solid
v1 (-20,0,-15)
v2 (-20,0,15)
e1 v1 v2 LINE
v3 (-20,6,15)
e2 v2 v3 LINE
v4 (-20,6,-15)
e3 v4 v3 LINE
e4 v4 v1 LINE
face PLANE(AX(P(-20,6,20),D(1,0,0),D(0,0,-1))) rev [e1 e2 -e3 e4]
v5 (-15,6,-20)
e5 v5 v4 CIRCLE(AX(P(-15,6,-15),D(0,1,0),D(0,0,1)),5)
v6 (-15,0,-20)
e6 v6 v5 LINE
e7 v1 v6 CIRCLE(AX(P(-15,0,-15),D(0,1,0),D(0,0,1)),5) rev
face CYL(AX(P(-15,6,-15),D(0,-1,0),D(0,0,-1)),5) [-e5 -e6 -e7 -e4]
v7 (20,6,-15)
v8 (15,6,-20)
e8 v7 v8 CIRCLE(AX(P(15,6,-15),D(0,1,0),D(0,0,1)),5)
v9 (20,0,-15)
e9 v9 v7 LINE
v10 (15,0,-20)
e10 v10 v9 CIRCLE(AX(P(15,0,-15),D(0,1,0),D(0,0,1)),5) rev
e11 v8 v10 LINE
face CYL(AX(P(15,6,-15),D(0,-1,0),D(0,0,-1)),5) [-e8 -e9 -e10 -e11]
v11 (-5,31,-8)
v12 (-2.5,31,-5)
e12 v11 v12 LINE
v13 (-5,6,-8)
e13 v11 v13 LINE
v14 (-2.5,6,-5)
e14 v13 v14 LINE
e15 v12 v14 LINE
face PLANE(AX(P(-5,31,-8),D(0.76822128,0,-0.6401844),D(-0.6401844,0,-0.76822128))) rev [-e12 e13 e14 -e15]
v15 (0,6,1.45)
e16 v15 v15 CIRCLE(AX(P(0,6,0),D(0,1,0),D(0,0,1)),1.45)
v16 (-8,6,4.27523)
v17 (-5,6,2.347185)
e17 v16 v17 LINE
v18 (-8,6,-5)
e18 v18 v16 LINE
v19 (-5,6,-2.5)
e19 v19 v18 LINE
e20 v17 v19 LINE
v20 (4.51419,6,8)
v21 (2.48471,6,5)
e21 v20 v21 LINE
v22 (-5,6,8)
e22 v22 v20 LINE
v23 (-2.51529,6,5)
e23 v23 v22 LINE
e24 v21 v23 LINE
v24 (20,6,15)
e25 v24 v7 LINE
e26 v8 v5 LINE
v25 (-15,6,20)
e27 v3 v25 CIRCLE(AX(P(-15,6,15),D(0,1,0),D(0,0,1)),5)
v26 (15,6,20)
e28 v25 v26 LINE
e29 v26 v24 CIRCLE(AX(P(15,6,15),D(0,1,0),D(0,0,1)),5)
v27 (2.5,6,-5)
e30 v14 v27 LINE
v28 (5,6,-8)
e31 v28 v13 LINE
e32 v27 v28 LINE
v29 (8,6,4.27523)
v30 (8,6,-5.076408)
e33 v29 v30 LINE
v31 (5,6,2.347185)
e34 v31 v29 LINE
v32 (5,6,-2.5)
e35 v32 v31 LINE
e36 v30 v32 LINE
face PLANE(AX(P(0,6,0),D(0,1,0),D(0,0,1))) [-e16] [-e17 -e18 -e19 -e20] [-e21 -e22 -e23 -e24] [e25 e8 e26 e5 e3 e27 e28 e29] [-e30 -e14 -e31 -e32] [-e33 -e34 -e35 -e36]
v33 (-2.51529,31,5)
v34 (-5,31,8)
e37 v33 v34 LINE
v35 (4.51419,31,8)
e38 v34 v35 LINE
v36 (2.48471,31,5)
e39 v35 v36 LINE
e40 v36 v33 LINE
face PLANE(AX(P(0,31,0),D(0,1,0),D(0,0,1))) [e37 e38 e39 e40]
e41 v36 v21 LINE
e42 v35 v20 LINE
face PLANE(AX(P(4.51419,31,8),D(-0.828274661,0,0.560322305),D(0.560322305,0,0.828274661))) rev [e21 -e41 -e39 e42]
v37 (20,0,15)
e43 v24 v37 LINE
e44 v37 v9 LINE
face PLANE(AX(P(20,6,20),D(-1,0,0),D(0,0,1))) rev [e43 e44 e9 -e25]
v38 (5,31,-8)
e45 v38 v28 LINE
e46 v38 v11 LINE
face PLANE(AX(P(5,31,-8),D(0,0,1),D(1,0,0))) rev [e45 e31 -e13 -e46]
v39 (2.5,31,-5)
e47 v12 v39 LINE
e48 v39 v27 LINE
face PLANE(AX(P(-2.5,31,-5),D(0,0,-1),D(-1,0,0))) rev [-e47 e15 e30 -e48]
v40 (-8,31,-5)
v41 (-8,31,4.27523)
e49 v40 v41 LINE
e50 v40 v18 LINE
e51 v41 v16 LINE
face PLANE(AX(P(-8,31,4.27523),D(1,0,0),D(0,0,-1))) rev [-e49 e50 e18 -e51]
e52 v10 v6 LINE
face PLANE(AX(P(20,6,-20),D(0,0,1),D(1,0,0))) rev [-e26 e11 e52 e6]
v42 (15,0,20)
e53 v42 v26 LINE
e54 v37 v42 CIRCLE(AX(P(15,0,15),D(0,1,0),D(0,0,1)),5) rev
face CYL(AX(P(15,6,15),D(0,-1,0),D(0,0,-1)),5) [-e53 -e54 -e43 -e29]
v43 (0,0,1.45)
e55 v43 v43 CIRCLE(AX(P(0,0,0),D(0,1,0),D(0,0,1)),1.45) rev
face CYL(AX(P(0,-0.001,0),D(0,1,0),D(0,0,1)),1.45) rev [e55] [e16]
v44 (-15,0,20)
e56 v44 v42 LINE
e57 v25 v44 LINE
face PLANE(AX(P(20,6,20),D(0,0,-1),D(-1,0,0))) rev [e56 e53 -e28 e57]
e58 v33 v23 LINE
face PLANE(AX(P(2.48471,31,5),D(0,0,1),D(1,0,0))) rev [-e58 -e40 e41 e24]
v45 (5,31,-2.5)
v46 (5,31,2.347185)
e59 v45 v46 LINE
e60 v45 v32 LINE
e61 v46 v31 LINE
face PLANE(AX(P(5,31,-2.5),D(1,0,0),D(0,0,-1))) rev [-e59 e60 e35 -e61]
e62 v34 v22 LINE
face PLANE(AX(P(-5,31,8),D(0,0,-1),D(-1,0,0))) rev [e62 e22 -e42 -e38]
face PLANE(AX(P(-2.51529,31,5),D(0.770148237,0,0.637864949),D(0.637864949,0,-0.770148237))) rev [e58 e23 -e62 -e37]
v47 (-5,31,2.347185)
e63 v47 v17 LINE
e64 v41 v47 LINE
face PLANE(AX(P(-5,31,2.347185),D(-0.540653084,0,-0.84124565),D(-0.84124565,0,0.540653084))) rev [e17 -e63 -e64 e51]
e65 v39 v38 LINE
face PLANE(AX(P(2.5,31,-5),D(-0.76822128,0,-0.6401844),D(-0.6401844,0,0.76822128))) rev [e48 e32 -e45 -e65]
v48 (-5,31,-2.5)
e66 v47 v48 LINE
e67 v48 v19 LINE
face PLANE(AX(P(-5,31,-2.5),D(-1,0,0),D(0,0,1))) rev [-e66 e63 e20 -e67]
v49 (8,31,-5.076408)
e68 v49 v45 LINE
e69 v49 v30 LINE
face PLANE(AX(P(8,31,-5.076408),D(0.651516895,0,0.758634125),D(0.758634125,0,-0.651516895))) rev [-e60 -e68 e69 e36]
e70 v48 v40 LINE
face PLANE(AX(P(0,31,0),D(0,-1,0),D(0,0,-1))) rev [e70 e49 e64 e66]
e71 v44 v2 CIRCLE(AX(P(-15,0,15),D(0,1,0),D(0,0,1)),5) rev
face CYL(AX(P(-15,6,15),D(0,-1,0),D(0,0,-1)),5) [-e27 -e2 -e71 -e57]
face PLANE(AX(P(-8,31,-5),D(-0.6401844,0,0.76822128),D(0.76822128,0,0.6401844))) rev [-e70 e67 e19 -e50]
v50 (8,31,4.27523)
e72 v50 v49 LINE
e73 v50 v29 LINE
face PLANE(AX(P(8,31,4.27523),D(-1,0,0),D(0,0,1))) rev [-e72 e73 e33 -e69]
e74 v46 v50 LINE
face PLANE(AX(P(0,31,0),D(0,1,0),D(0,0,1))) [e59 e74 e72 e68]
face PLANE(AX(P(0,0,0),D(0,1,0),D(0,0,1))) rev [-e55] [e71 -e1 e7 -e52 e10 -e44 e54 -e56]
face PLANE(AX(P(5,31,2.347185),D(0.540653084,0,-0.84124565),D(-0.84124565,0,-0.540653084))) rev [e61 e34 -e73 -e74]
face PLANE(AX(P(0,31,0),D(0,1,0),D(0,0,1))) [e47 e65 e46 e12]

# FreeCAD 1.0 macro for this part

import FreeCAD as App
import Part
import Sketcher
Q = App.Units.Quantity


def edges_at(feature, points):
    """Names of the edges that pass closest to the given points."""
    edges = feature.Shape.Edges
    near = lambda p: min(range(len(edges)), key=lambda i: edges[i].distToShape(Part.Vertex(*p))[0])
    return sorted({f"Edge{near(p) + 1}" for p in points})

doc = App.newDocument("Part")
params = doc.addObject("Spreadsheet::Sheet", "Params")
for row, (alias, value) in enumerate([
    ("sketch1_width", "40 mm"),
    ("pad1_length", "6 mm"),
    ("sketch2_width", "10 mm"),
    ("sketch2_width2", "5 mm"),
    ("pad2_length", "25 mm"),
    ("sketch3_width", "5 mm"),
    ("pad3_length", "25 mm"),
    ("pad4_length", "25 mm"),
    ("sketch5_diameter", "2.9 mm"),
    ("fillet_radius", "5 mm"),
], start=1):
    params.set(f"A{row}", alias)
    params.set(f"B{row}", "=" + value)
    params.setAlias(f"B{row}", alias)

body = doc.addObject("PartDesign::Body", "Body")

# Sketch on XZ plane
sketch1 = body.newObject("Sketcher::SketchObject", "Sketch")
sketch1.AttachmentSupport = (doc.getObject("XZ_Plane"), [""])
sketch1.MapMode = "FlatFace"
sketch1.addGeometry([
    Part.LineSegment(App.Vector(-20, -20, 0), App.Vector(-20, 20, 0)),
    Part.LineSegment(App.Vector(-20, 20, 0), App.Vector(20, 20, 0)),
    Part.LineSegment(App.Vector(20, 20, 0), App.Vector(20, -20, 0)),
    Part.LineSegment(App.Vector(20, -20, 0), App.Vector(-20, -20, 0)),
], False)
sketch1.addConstraint([
    Sketcher.Constraint("Coincident", 0, 2, 1, 1),
    Sketcher.Constraint("Coincident", 1, 2, 2, 1),
    Sketcher.Constraint("Coincident", 2, 2, 3, 1),
    Sketcher.Constraint("Coincident", 3, 2, 0, 1),
    Sketcher.Constraint("Vertical", 0),
    Sketcher.Constraint("Horizontal", 1),
    Sketcher.Constraint("Vertical", 2),
    Sketcher.Constraint("Horizontal", 3),
    Sketcher.Constraint("Symmetric", 0, 2, 2, 2, -1, 1),
    Sketcher.Constraint("Equal", 3, 0),
    Sketcher.Constraint("DistanceX", 1, 1, 1, 2, Q("40 mm")),
])
sketch1.setExpression("Constraints[10]", "Params.sketch1_width")
pad1 = body.newObject("PartDesign::Pad", "Pad")
pad1.Profile = sketch1
pad1.setExpression("Length", "Params.pad1_length")
pad1.Reversed = True

# Sketch on XZ plane
sketch2 = body.newObject("Sketcher::SketchObject", "Sketch001")
sketch2.AttachmentSupport = (doc.getObject("XZ_Plane"), [""])
sketch2.MapMode = "FlatFace"
sketch2.AttachmentOffset = App.Placement(App.Vector(0, 0, -6), App.Rotation())
sketch2.addGeometry([
    Part.LineSegment(App.Vector(5, -8, 0), App.Vector(-5, -8, 0)),
    Part.LineSegment(App.Vector(-5, -8, 0), App.Vector(-2.5, -5, 0)),
    Part.LineSegment(App.Vector(-2.5, -5, 0), App.Vector(2.5, -5, 0)),
    Part.LineSegment(App.Vector(2.5, -5, 0), App.Vector(5, -8, 0)),
], False)
sketch2.addConstraint([
    Sketcher.Constraint("Coincident", 0, 2, 1, 1),
    Sketcher.Constraint("Coincident", 1, 2, 2, 1),
    Sketcher.Constraint("Coincident", 2, 2, 3, 1),
    Sketcher.Constraint("Coincident", 3, 2, 0, 1),
    Sketcher.Constraint("Horizontal", 0),
    Sketcher.Constraint("Horizontal", 2),
    Sketcher.Constraint("Equal", 1, 3),
    Sketcher.Constraint("DistanceX", 0, 2, 0, 1, Q("10 mm")),
    Sketcher.Constraint("DistanceX", 2, 1, 2, 2, Q("5 mm")),
    Sketcher.Constraint("DistanceX", 0, 2, -1, 1, Q("5 mm")),
    Sketcher.Constraint("DistanceY", 0, 2, -1, 1, Q("8 mm")),
    Sketcher.Constraint("DistanceY", 1, 2, -1, 1, Q("5 mm")),
])
sketch2.setExpression("Constraints[7]", "Params.sketch2_width")
sketch2.setExpression("Constraints[8]", "Params.sketch2_width2")
pad2 = body.newObject("PartDesign::Pad", "Pad001")
pad2.Profile = sketch2
pad2.setExpression("Length", "Params.pad2_length")
pad2.Reversed = True

# Sketch on XZ plane
sketch3 = body.newObject("Sketcher::SketchObject", "Sketch002")
sketch3.AttachmentSupport = (doc.getObject("XZ_Plane"), [""])
sketch3.MapMode = "FlatFace"
sketch3.AttachmentOffset = App.Placement(App.Vector(0, 0, -6), App.Rotation())
sketch3.addGeometry([
    Part.LineSegment(App.Vector(-5, 8, 0), App.Vector(4.5, 8, 0)),
    Part.LineSegment(App.Vector(4.5, 8, 0), App.Vector(2.5, 5, 0)),
    Part.LineSegment(App.Vector(2.5, 5, 0), App.Vector(-2.5, 5, 0)),
    Part.LineSegment(App.Vector(-2.5, 5, 0), App.Vector(-5, 8, 0)),
], False)
sketch3.addConstraint([
    Sketcher.Constraint("Coincident", 0, 2, 1, 1),
    Sketcher.Constraint("Coincident", 1, 2, 2, 1),
    Sketcher.Constraint("Coincident", 2, 2, 3, 1),
    Sketcher.Constraint("Coincident", 3, 2, 0, 1),
    Sketcher.Constraint("Horizontal", 0),
    Sketcher.Constraint("Horizontal", 2),
    Sketcher.Constraint("DistanceX", 2, 2, 2, 1, Q("5 mm")),
    Sketcher.Constraint("DistanceY", -1, 1, 0, 2, Q("8 mm")),
    Sketcher.Constraint("DistanceY", -1, 1, 1, 2, Q("5 mm")),
    Sketcher.Constraint("DistanceX", 3, 2, -1, 1, Q("5 mm")),
    Sketcher.Constraint("DistanceX", 0, 1, 0, 2, Q("9.51419 mm")),
    Sketcher.Constraint("DistanceX", -1, 1, 1, 2, Q("2.48471 mm")),
])
sketch3.setExpression("Constraints[6]", "Params.sketch3_width")
pad3 = body.newObject("PartDesign::Pad", "Pad002")
pad3.Profile = sketch3
pad3.setExpression("Length", "Params.pad3_length")
pad3.Reversed = True

# Sketch on XZ plane
sketch4 = body.newObject("Sketcher::SketchObject", "Sketch003")
sketch4.AttachmentSupport = (doc.getObject("XZ_Plane"), [""])
sketch4.MapMode = "FlatFace"
sketch4.AttachmentOffset = App.Placement(App.Vector(0, 0, -6), App.Rotation())
sketch4.addGeometry([
    Part.LineSegment(App.Vector(8, 4.3, 0), App.Vector(8, -5.1, 0)),  # 0
    Part.LineSegment(App.Vector(8, -5.1, 0), App.Vector(5, -2.5, 0)),  # 1
    Part.LineSegment(App.Vector(5, -2.5, 0), App.Vector(5, 2.3, 0)),  # 2
    Part.LineSegment(App.Vector(5, 2.3, 0), App.Vector(8, 4.3, 0)),  # 3
    Part.LineSegment(App.Vector(-8, -5, 0), App.Vector(-8, 4.3, 0)),  # 4
    Part.LineSegment(App.Vector(-8, 4.3, 0), App.Vector(-5, 2.3, 0)),  # 5
    Part.LineSegment(App.Vector(-5, 2.3, 0), App.Vector(-5, -2.5, 0)),  # 6
    Part.LineSegment(App.Vector(-5, -2.5, 0), App.Vector(-8, -5, 0)),  # 7
], False)
sketch4.addConstraint([
    Sketcher.Constraint("Coincident", 0, 2, 1, 1),
    Sketcher.Constraint("Coincident", 1, 2, 2, 1),
    Sketcher.Constraint("Coincident", 2, 2, 3, 1),
    Sketcher.Constraint("Coincident", 3, 2, 0, 1),
    Sketcher.Constraint("Coincident", 4, 2, 5, 1),
    Sketcher.Constraint("Coincident", 5, 2, 6, 1),
    Sketcher.Constraint("Coincident", 6, 2, 7, 1),
    Sketcher.Constraint("Coincident", 7, 2, 4, 1),
    Sketcher.Constraint("Vertical", 0),
    Sketcher.Constraint("Vertical", 2),
    Sketcher.Constraint("Vertical", 4),
    Sketcher.Constraint("Vertical", 6),
    Sketcher.Constraint("Symmetric", 3, 2, 4, 2, -2),
    Sketcher.Constraint("Symmetric", 2, 2, 5, 2, -2),
    Sketcher.Constraint("Horizontal", 1, 2, 6, 2),
    Sketcher.Constraint("DistanceX", -1, 1, 0, 2, Q("8 mm")),
    Sketcher.Constraint("DistanceX", -1, 1, 1, 2, Q("5 mm")),
    Sketcher.Constraint("DistanceY", 7, 2, -1, 1, Q("5 mm")),
    Sketcher.Constraint("DistanceY", 1, 2, -1, 1, Q("2.5 mm")),
    Sketcher.Constraint("DistanceY", 4, 1, 4, 2, Q("9.27523 mm")),
    Sketcher.Constraint("Distance", 3, Q("3.56614 mm")),
    Sketcher.Constraint("DistanceY", 0, 2, 0, 1, Q("9.351637 mm")),
])
pad4 = body.newObject("PartDesign::Pad", "Pad003")
pad4.Profile = sketch4
pad4.setExpression("Length", "Params.pad4_length")
pad4.Reversed = True

# Sketch on XZ plane
sketch5 = body.newObject("Sketcher::SketchObject", "Sketch004")
sketch5.AttachmentSupport = (doc.getObject("XZ_Plane"), [""])
sketch5.MapMode = "FlatFace"
sketch5.AttachmentOffset = App.Placement(App.Vector(0, 0, -6), App.Rotation())
sketch5.addGeometry(Part.Circle(App.Vector(0, 0, 0), App.Vector(0, 0, 1), 1.4), False)
sketch5.addConstraint([
    Sketcher.Constraint("Coincident", 0, 3, -1, 1),
    Sketcher.Constraint("Diameter", 0, Q("2.9 mm")),
])
sketch5.setExpression("Constraints[1]", "Params.sketch5_diameter")
pocket1 = body.newObject("PartDesign::Pocket", "Pocket")
pocket1.Profile = sketch5
pocket1.Type = "UpToFirst"
pocket1.Reversed = True
doc.recompute()

fillet = body.newObject("PartDesign::Fillet", "Fillet")
fillet.Base = (pocket1, edges_at(pocket1, [
    (-20, 3, -20),
    (20, 3, -20),
    (20, 3, 20),
    (-20, 3, 20),
]))
fillet.setExpression("Radius", "Params.fillet_radius")

doc.recompute()
